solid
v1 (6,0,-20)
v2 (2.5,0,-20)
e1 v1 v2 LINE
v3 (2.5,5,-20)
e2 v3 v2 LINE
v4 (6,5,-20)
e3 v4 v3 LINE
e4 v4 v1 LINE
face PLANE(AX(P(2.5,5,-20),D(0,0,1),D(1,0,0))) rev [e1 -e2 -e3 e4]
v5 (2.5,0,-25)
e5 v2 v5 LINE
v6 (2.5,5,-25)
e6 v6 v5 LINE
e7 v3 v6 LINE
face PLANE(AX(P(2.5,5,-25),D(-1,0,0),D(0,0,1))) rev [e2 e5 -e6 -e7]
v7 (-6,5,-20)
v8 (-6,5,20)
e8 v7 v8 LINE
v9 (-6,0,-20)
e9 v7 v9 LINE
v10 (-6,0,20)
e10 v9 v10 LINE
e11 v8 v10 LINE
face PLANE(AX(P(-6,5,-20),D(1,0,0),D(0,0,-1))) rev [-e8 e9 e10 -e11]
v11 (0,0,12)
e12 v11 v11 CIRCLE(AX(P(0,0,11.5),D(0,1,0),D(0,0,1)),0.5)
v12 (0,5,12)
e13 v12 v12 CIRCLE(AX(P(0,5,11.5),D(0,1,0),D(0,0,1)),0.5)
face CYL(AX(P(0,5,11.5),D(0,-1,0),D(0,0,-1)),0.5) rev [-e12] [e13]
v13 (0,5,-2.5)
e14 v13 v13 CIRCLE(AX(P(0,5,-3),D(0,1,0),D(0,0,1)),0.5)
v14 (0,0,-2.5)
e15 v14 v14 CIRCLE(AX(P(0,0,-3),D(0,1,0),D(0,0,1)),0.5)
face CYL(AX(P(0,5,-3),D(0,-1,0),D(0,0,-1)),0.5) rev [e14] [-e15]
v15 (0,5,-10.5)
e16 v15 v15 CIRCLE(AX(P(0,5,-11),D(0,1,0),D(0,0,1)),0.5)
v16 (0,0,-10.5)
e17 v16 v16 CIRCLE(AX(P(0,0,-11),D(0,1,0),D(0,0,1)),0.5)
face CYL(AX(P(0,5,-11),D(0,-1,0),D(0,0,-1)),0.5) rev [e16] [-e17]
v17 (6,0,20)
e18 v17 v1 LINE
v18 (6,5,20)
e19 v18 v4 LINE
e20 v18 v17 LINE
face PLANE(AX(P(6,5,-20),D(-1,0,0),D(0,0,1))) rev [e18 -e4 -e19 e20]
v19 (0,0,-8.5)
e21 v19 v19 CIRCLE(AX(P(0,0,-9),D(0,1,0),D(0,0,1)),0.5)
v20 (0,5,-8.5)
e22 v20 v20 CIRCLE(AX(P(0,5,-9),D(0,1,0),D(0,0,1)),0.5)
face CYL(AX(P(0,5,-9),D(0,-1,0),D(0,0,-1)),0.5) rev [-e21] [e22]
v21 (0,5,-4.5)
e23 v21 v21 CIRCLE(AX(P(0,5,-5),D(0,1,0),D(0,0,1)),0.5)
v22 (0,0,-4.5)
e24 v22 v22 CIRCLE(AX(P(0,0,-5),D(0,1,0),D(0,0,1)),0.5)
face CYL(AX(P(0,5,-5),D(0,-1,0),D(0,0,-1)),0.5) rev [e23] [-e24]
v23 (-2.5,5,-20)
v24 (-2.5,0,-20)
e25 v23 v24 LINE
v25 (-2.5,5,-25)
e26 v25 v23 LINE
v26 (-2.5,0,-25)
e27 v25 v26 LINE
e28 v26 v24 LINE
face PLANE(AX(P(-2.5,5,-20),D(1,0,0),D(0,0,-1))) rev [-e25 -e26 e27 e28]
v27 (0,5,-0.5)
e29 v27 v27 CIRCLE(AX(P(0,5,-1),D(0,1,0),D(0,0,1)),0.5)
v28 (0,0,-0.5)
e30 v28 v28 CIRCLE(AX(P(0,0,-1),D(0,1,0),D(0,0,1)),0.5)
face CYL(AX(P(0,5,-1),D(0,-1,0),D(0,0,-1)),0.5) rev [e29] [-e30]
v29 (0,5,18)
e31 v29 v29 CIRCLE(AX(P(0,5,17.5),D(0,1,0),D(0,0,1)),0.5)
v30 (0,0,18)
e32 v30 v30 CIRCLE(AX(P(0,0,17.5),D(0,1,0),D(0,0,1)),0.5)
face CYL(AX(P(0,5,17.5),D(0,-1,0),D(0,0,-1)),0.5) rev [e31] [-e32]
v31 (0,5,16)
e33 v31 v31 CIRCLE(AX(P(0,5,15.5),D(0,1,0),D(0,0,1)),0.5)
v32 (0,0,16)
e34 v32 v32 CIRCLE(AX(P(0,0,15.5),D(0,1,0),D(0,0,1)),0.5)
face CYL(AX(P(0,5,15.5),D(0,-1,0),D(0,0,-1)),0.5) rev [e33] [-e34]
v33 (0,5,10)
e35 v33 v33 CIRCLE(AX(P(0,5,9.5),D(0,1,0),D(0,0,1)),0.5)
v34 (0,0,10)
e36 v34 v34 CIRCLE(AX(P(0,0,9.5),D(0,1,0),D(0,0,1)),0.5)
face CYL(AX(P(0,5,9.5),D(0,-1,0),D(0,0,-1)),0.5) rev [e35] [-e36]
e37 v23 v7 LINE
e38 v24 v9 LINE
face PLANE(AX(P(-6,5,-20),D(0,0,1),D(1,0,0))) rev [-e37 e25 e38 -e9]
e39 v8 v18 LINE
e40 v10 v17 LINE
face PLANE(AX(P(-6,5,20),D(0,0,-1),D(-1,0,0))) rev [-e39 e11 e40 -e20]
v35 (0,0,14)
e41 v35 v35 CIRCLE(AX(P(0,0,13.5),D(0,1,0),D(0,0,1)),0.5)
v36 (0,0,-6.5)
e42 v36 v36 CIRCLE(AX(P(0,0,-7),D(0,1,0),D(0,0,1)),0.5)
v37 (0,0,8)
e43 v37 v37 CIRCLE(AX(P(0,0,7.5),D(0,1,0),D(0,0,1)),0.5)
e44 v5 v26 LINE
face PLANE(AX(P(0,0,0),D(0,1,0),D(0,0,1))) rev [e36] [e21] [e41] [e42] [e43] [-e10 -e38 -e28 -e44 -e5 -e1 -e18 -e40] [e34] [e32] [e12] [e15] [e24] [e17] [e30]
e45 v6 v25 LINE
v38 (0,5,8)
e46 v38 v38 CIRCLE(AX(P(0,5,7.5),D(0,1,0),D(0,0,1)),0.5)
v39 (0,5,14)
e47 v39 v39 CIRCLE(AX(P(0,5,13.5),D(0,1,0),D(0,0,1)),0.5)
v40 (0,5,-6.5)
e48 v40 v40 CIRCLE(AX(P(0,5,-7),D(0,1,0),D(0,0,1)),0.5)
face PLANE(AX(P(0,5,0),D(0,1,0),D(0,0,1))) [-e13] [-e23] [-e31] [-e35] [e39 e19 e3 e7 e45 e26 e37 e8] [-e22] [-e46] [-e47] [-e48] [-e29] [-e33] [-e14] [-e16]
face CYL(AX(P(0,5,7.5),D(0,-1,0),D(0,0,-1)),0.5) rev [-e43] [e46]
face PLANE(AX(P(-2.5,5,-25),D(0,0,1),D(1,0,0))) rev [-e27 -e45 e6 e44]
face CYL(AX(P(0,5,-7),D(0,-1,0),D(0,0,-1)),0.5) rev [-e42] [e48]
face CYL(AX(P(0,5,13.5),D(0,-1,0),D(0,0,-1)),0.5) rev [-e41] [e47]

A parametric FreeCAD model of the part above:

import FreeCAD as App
import Part
import Sketcher
from FreeCAD import Vector
Q = App.Units.Quantity

doc = App.newDocument("Part")
params = doc.addObject("Spreadsheet::Sheet", "Params")
for row, (alias, value) in enumerate([
    ("sketch1_diameter", "1 mm"),
    ("sketch1_width", "12 mm"),
    ("sketch1_width2", "5 mm"),
    ("sketch1_height", "40 mm"),
    ("pad1_length", "5 mm"),
], start=1):
    params.set(f"A{row}", alias)
    params.set(f"B{row}", "=" + value)
    params.setAlias(f"B{row}", alias)

body = doc.addObject("PartDesign::Body", "Body")

# Sketch on XZ plane
sketch1 = body.newObject("Sketcher::SketchObject", "Sketch")
sketch1.AttachmentSupport = (doc.getObject("XZ_Plane"), [""])
sketch1.MapMode = "FlatFace"
sketch1.addGeometry(Part.LineSegment(Vector(-2.5, -25, 0), Vector(-2.5, -20, 0)), False)
sketch1.addGeometry(Part.LineSegment(Vector(-2.5, -20, 0), Vector(-6, -20, 0)), False)
sketch1.addGeometry(Part.LineSegment(Vector(-6, -20, 0), Vector(-6, 20, 0)), False)
sketch1.addGeometry(Part.LineSegment(Vector(-6, 20, 0), Vector(6, 20, 0)), False)
sketch1.addGeometry(Part.LineSegment(Vector(6, 20, 0), Vector(6, -20, 0)), False)
sketch1.addGeometry(Part.LineSegment(Vector(6, -20, 0), Vector(2.5, -20, 0)), False)
sketch1.addGeometry(Part.LineSegment(Vector(2.5, -20, 0), Vector(2.5, -25, 0)), False)
sketch1.addGeometry(Part.LineSegment(Vector(2.5, -25, 0), Vector(-2.5, -25, 0)), False)
sketch1.addGeometry(Part.Circle(Vector(0, 17.5, 0), Vector(0, 0, 1), 0.5), False)
sketch1.addGeometry(Part.Circle(Vector(0, 15.5, 0), Vector(0, 0, 1), 0.5), False)
sketch1.addGeometry(Part.Circle(Vector(0, 13.5, 0), Vector(0, 0, 1), 0.5), False)
sketch1.addGeometry(Part.Circle(Vector(0, 11.5, 0), Vector(0, 0, 1), 0.5), False)
sketch1.addGeometry(Part.Circle(Vector(0, 9.5, 0), Vector(0, 0, 1), 0.5), False)
sketch1.addGeometry(Part.Circle(Vector(0, 7.5, 0), Vector(0, 0, 1), 0.5), False)
sketch1.addGeometry(Part.Circle(Vector(0, -1, 0), Vector(0, 0, 1), 0.5), False)
sketch1.addGeometry(Part.Circle(Vector(0, -3, 0), Vector(0, 0, 1), 0.5), False)
sketch1.addGeometry(Part.Circle(Vector(0, -5, 0), Vector(0, 0, 1), 0.5), False)
sketch1.addGeometry(Part.Circle(Vector(0, -7, 0), Vector(0, 0, 1), 0.5), False)
sketch1.addGeometry(Part.Circle(Vector(0, -9, 0), Vector(0, 0, 1), 0.5), False)
sketch1.addGeometry(Part.Circle(Vector(0, -11, 0), Vector(0, 0, 1), 0.5), False)
sketch1.addConstraint(Sketcher.Constraint("Coincident", 0, 2, 1, 1))
sketch1.addConstraint(Sketcher.Constraint("Coincident", 1, 2, 2, 1))
sketch1.addConstraint(Sketcher.Constraint("Coincident", 2, 2, 3, 1))
sketch1.addConstraint(Sketcher.Constraint("Coincident", 3, 2, 4, 1))
sketch1.addConstraint(Sketcher.Constraint("Coincident", 4, 2, 5, 1))
sketch1.addConstraint(Sketcher.Constraint("Coincident", 5, 2, 6, 1))
sketch1.addConstraint(Sketcher.Constraint("Coincident", 6, 2, 7, 1))
sketch1.addConstraint(Sketcher.Constraint("Coincident", 7, 2, 0, 1))
sketch1.addConstraint(Sketcher.Constraint("Vertical", 0))
sketch1.addConstraint(Sketcher.Constraint("Horizontal", 1))
sketch1.addConstraint(Sketcher.Constraint("Vertical", 2))
sketch1.addConstraint(Sketcher.Constraint("Horizontal", 3))
sketch1.addConstraint(Sketcher.Constraint("Vertical", 4))
sketch1.addConstraint(Sketcher.Constraint("Horizontal", 5))
sketch1.addConstraint(Sketcher.Constraint("Vertical", 6))
sketch1.addConstraint(Sketcher.Constraint("Horizontal", 7))
sketch1.addConstraint(Sketcher.Constraint("Equal", 8, 9))
sketch1.addConstraint(Sketcher.Constraint("Equal", 9, 10))
sketch1.addConstraint(Sketcher.Constraint("Equal", 10, 11))
sketch1.addConstraint(Sketcher.Constraint("Equal", 11, 12))
sketch1.addConstraint(Sketcher.Constraint("Equal", 12, 13))
sketch1.addConstraint(Sketcher.Constraint("Equal", 13, 14))
sketch1.addConstraint(Sketcher.Constraint("Equal", 14, 15))
sketch1.addConstraint(Sketcher.Constraint("Equal", 15, 16))
sketch1.addConstraint(Sketcher.Constraint("Equal", 16, 17))
sketch1.addConstraint(Sketcher.Constraint("Equal", 17, 18))
sketch1.addConstraint(Sketcher.Constraint("Equal", 18, 19))
sketch1.addConstraint(Sketcher.Constraint("Symmetric", 1, 2, 3, 2, -1, 1))
sketch1.addConstraint(Sketcher.Constraint("Symmetric", 0, 2, 5, 2, -2))
sketch1.addConstraint(Sketcher.Constraint("PointOnObject", 8, 3, -2))
sketch1.addConstraint(Sketcher.Constraint("PointOnObject", 9, 3, -2))
sketch1.addConstraint(Sketcher.Constraint("PointOnObject", 10, 3, -2))
sketch1.addConstraint(Sketcher.Constraint("PointOnObject", 11, 3, -2))
sketch1.addConstraint(Sketcher.Constraint("PointOnObject", 12, 3, -2))
sketch1.addConstraint(Sketcher.Constraint("PointOnObject", 13, 3, -2))
sketch1.addConstraint(Sketcher.Constraint("PointOnObject", 14, 3, -2))
sketch1.addConstraint(Sketcher.Constraint("PointOnObject", 15, 3, -2))
sketch1.addConstraint(Sketcher.Constraint("PointOnObject", 16, 3, -2))
sketch1.addConstraint(Sketcher.Constraint("PointOnObject", 17, 3, -2))
sketch1.addConstraint(Sketcher.Constraint("PointOnObject", 18, 3, -2))
sketch1.addConstraint(Sketcher.Constraint("PointOnObject", 19, 3, -2))
sketch1.addConstraint(Sketcher.Constraint("Equal", 7, 0))
sketch1.addConstraint(Sketcher.Constraint("Diameter", 8, Q("1 mm")))
sketch1.addConstraint(Sketcher.Constraint("DistanceX", 3, 1, 3, 2, Q("12 mm")))
sketch1.addConstraint(Sketcher.Constraint("DistanceX", 7, 2, 7, 1, Q("5 mm")))
sketch1.addConstraint(Sketcher.Constraint("DistanceY", 2, 1, 2, 2, Q("40 mm")))
sketch1.addConstraint(Sketcher.Constraint("DistanceY", 14, 3, -1, 1, Q("1 mm")))
sketch1.addConstraint(Sketcher.Constraint("DistanceY", 15, 3, -1, 1, Q("3 mm")))
sketch1.addConstraint(Sketcher.Constraint("DistanceY", 16, 3, -1, 1, Q("5 mm")))
sketch1.addConstraint(Sketcher.Constraint("DistanceY", 17, 3, -1, 1, Q("7 mm")))
sketch1.addConstraint(Sketcher.Constraint("DistanceY", 18, 3, -1, 1, Q("9 mm")))
sketch1.addConstraint(Sketcher.Constraint("DistanceY", 19, 3, -1, 1, Q("11 mm")))
sketch1.addConstraint(Sketcher.Constraint("DistanceY", 9, 3, 8, 3, Q("2 mm")))
sketch1.addConstraint(Sketcher.Constraint("DistanceY", 10, 3, 9, 3, Q("2 mm")))
sketch1.addConstraint(Sketcher.Constraint("DistanceY", 11, 3, 10, 3, Q("2 mm")))
sketch1.addConstraint(Sketcher.Constraint("DistanceY", 12, 3, 11, 3, Q("2 mm")))
sketch1.addConstraint(Sketcher.Constraint("DistanceY", 13, 3, 12, 3, Q("2 mm")))
sketch1.addConstraint(Sketcher.Constraint("DistanceY", -1, 1, 8, 3, Q("17.5 mm")))
sketch1.setExpression("Constraints[42]", "Params.sketch1_diameter")
sketch1.setExpression("Constraints[43]", "Params.sketch1_width")
sketch1.setExpression("Constraints[44]", "Params.sketch1_width2")
sketch1.setExpression("Constraints[45]", "Params.sketch1_height")
pad1 = body.newObject("PartDesign::Pad", "Pad")
pad1.Profile = sketch1
pad1.setExpression("Length", "Params.pad1_length")
pad1.Reversed = True

doc.recompute()
